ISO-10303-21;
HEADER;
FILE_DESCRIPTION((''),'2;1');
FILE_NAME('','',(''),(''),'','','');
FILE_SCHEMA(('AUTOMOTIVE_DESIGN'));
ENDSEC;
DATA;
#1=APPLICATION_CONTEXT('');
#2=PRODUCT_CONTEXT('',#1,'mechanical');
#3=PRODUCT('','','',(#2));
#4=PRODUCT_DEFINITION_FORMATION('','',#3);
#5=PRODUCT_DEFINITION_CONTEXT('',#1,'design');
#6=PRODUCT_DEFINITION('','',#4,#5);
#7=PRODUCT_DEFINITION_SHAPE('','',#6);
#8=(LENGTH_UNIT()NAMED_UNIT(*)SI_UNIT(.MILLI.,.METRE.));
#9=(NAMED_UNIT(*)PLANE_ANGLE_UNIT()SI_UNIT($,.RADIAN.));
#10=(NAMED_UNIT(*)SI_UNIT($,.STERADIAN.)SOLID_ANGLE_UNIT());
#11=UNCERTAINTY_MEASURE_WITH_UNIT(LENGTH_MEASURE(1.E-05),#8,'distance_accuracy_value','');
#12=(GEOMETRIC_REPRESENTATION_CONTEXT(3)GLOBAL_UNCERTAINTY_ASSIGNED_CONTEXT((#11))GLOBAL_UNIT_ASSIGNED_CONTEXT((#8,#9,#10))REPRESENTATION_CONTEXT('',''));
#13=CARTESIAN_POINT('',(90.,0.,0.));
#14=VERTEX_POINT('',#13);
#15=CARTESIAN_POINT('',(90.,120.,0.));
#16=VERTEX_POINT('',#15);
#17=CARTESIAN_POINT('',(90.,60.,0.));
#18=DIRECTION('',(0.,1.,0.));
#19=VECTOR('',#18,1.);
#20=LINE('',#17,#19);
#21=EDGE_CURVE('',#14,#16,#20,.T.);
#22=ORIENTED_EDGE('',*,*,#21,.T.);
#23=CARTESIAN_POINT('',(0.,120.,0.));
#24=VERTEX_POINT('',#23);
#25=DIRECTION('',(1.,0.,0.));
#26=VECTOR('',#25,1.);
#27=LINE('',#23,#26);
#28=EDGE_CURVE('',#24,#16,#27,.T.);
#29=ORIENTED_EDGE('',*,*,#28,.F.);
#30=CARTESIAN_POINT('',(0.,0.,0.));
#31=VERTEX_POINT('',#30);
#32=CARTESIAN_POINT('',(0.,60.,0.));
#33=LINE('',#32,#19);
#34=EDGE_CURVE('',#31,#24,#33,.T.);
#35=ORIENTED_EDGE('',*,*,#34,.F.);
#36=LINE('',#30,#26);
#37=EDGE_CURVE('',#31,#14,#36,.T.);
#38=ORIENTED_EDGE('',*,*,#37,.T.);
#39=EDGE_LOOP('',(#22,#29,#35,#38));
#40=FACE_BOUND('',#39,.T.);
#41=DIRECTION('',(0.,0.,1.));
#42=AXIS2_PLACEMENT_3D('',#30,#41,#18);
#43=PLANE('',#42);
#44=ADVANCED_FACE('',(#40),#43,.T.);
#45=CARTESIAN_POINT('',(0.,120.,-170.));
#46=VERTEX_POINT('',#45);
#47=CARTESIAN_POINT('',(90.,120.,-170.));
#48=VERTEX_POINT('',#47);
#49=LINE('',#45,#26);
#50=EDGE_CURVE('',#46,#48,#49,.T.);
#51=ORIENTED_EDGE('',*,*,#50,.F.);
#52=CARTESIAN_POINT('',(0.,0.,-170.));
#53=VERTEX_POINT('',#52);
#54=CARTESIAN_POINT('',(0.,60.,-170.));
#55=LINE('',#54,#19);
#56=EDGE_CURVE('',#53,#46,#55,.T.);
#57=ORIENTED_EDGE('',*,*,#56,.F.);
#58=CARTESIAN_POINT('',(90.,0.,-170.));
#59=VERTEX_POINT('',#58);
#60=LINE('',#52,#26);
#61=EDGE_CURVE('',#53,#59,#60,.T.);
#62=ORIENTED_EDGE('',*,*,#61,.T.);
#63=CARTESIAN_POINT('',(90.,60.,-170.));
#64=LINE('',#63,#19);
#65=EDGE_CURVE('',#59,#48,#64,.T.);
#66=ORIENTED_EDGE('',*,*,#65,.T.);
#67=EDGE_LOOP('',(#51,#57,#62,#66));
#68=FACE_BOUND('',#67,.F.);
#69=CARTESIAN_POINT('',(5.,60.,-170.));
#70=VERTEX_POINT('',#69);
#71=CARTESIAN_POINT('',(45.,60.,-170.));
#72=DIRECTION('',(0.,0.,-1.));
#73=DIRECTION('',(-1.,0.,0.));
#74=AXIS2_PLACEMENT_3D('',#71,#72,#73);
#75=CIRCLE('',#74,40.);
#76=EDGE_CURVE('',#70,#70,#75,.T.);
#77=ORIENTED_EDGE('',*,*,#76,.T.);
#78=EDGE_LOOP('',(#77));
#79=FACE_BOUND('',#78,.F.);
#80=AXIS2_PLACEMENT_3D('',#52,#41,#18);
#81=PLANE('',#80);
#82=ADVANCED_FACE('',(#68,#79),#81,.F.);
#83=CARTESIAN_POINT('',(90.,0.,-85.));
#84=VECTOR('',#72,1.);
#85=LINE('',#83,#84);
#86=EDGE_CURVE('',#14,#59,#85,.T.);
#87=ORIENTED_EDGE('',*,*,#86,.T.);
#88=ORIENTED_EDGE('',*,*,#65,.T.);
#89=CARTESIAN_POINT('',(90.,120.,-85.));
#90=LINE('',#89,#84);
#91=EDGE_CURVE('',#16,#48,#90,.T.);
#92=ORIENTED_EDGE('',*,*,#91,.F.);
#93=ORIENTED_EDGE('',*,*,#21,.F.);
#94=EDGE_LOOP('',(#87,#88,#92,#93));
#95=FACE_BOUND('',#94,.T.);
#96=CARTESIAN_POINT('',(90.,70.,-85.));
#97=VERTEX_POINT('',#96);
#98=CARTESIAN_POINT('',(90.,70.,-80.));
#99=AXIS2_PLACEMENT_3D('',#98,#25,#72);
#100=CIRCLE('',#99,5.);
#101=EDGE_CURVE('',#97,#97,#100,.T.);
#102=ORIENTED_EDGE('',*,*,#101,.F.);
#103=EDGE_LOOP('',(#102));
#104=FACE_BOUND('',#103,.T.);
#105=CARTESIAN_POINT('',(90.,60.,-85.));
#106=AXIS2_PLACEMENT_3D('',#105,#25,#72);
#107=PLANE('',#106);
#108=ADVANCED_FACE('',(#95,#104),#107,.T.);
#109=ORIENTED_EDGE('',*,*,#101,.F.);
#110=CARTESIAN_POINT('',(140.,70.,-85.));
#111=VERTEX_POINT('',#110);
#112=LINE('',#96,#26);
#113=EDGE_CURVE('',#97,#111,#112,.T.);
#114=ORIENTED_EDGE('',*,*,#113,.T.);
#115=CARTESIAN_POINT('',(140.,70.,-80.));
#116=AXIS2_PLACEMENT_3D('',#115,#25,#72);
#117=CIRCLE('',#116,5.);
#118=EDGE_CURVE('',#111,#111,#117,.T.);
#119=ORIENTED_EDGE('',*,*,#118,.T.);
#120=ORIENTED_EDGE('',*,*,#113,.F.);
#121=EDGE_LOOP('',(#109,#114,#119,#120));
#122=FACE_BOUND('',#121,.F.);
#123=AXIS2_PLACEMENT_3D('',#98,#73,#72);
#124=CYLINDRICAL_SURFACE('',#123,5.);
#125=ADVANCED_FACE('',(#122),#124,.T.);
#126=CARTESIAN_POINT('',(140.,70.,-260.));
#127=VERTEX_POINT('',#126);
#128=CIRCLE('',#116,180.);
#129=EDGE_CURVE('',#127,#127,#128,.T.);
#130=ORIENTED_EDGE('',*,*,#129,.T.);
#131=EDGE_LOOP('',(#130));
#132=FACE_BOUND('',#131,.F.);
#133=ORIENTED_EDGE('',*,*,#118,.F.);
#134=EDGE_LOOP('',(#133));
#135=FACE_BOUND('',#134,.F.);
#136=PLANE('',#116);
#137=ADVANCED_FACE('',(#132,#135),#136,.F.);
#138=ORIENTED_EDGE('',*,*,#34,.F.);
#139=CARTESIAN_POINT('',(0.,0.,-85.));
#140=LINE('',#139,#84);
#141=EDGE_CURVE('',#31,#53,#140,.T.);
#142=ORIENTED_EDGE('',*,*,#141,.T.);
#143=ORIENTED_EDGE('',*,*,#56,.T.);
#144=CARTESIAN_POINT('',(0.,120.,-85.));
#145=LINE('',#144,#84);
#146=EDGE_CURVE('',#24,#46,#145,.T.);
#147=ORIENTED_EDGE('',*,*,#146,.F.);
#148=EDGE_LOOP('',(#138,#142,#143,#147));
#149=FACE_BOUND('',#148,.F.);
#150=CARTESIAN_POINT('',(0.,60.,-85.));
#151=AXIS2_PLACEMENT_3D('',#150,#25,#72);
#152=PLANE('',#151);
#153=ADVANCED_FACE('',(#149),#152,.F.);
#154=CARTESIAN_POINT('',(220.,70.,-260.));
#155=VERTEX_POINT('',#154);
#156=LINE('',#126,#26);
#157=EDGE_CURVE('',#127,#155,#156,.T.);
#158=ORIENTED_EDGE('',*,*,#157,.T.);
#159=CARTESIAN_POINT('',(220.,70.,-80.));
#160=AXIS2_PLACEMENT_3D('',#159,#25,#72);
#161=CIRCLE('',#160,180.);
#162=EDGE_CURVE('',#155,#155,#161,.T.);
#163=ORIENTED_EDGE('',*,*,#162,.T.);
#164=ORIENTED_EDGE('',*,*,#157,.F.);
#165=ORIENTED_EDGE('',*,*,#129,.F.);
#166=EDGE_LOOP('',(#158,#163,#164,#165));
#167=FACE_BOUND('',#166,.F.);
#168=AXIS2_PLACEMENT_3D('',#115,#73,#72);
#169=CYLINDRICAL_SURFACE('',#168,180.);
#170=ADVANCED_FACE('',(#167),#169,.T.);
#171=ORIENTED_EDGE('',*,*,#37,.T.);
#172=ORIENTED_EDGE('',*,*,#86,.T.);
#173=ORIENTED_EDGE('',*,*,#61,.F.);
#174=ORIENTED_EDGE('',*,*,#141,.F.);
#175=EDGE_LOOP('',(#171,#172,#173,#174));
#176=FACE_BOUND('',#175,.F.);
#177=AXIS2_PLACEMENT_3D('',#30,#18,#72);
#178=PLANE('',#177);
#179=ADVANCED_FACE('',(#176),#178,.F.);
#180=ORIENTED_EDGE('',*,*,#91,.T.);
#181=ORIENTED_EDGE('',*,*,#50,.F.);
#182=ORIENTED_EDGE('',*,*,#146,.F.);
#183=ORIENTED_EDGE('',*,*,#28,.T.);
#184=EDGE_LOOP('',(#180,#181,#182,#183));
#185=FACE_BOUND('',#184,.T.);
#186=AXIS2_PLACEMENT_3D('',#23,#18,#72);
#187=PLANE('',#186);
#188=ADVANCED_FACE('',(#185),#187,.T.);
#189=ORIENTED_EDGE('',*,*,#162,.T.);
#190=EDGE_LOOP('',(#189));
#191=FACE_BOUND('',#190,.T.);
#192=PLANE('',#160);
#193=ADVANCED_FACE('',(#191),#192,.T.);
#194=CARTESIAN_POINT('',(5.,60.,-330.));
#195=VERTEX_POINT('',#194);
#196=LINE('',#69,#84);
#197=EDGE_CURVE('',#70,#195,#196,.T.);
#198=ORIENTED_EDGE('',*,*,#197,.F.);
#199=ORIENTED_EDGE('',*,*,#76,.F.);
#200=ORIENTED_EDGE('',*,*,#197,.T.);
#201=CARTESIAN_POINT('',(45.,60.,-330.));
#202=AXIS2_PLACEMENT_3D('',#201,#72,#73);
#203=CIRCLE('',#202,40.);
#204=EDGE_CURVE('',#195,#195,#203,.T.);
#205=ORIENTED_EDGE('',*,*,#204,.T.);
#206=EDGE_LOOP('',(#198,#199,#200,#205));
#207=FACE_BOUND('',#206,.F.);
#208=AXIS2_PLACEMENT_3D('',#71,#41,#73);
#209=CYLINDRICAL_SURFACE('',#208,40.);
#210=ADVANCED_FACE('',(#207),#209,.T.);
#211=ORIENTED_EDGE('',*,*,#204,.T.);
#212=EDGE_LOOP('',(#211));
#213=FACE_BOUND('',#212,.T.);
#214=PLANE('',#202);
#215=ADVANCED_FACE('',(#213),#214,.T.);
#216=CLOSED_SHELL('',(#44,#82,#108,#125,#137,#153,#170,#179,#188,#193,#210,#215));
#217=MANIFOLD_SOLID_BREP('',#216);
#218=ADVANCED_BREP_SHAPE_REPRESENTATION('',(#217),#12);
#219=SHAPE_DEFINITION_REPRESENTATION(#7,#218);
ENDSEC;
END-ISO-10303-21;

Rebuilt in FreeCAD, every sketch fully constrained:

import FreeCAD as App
import Part
import Sketcher

V = App.Vector

doc = App.newDocument("Part")
body = doc.addObject("PartDesign::Body", "Body")

sketch1 = body.newObject("Sketcher::SketchObject", "Sketch")
sketch1.AttachmentSupport = (doc.getObject("YZ_Plane"), [""])
sketch1.MapMode = "FlatFace"
sketch1.addGeometry([
    Part.LineSegment(V(120, 0, 0), V(0, 0, 0)),
    Part.LineSegment(V(0, 0, 0), V(0, -170, 0)),
    Part.LineSegment(V(0, -170, 0), V(120, -170, 0)),
    Part.LineSegment(V(120, -170, 0), V(120, 0, 0)),
], False)
sketch1.addConstraint([
    Sketcher.Constraint("Coincident", 0, 2, 1, 1),
    Sketcher.Constraint("Coincident", 1, 2, 2, 1),
    Sketcher.Constraint("Coincident", 2, 2, 3, 1),
    Sketcher.Constraint("Coincident", 3, 2, 0, 1),
    Sketcher.Constraint("Horizontal", 0),
    Sketcher.Constraint("Vertical", 1),
    Sketcher.Constraint("Horizontal", 2),
    Sketcher.Constraint("Vertical", 3),
    Sketcher.Constraint("Coincident", 0, 2, -1, 1),
    Sketcher.Constraint("DistanceX", 0, 2, 0, 1, 120.0),
    Sketcher.Constraint("DistanceY", 1, 2, 1, 1, 170.0),
])
pad1 = body.newObject("PartDesign::Pad", "Pad")
pad1.Profile = sketch1
pad1.Length = 90

sketch2 = body.newObject("Sketcher::SketchObject", "Sketch001")
sketch2.AttachmentSupport = (doc.getObject("XY_Plane"), [""])
sketch2.MapMode = "FlatFace"
sketch2.AttachmentOffset = App.Placement(V(0, 0, -170), App.Rotation())
sketch2.addGeometry(Part.Circle(V(45, 60, 0), V(0, 0, 1), 40), False)
sketch2.addConstraint([
    Sketcher.Constraint("Diameter", 0, 80.0),
    Sketcher.Constraint("DistanceX", -1, 1, 0, 3, 45.0),
    Sketcher.Constraint("DistanceY", -1, 1, 0, 3, 60.0),
])
pad2 = body.newObject("PartDesign::Pad", "Pad001")
pad2.Profile = sketch2
pad2.Length = 160
pad2.Reversed = True

sketch3 = body.newObject("Sketcher::SketchObject", "Sketch002")
sketch3.AttachmentSupport = (doc.getObject("YZ_Plane"), [""])
sketch3.MapMode = "FlatFace"
sketch3.AttachmentOffset = App.Placement(V(0, 0, 90), App.Rotation())
sketch3.addGeometry(Part.Circle(V(70, -80, 0), V(0, 0, 1), 5), False)
sketch3.addConstraint([
    Sketcher.Constraint("Diameter", 0, 10.0),
    Sketcher.Constraint("DistanceX", -1, 1, 0, 3, 70.0),
    Sketcher.Constraint("DistanceY", 0, 3, -1, 1, 80.0),
])
pad3 = body.newObject("PartDesign::Pad", "Pad002")
pad3.Profile = sketch3
pad3.Length = 50

sketch4 = body.newObject("Sketcher::SketchObject", "Sketch003")
sketch4.AttachmentSupport = (doc.getObject("YZ_Plane"), [""])
sketch4.MapMode = "FlatFace"
sketch4.AttachmentOffset = App.Placement(V(0, 0, 140), App.Rotation())
sketch4.addGeometry(Part.Circle(V(70, -80, 0), V(0, 0, 1), 180), False)
sketch4.addConstraint([
    Sketcher.Constraint("Diameter", 0, 360.0),
    Sketcher.Constraint("DistanceX", -1, 1, 0, 3, 70.0),
    Sketcher.Constraint("DistanceY", 0, 3, -1, 1, 80.0),
])
pad4 = body.newObject("PartDesign::Pad", "Pad003")
pad4.Profile = sketch4
pad4.Length = 80

doc.recompute()
